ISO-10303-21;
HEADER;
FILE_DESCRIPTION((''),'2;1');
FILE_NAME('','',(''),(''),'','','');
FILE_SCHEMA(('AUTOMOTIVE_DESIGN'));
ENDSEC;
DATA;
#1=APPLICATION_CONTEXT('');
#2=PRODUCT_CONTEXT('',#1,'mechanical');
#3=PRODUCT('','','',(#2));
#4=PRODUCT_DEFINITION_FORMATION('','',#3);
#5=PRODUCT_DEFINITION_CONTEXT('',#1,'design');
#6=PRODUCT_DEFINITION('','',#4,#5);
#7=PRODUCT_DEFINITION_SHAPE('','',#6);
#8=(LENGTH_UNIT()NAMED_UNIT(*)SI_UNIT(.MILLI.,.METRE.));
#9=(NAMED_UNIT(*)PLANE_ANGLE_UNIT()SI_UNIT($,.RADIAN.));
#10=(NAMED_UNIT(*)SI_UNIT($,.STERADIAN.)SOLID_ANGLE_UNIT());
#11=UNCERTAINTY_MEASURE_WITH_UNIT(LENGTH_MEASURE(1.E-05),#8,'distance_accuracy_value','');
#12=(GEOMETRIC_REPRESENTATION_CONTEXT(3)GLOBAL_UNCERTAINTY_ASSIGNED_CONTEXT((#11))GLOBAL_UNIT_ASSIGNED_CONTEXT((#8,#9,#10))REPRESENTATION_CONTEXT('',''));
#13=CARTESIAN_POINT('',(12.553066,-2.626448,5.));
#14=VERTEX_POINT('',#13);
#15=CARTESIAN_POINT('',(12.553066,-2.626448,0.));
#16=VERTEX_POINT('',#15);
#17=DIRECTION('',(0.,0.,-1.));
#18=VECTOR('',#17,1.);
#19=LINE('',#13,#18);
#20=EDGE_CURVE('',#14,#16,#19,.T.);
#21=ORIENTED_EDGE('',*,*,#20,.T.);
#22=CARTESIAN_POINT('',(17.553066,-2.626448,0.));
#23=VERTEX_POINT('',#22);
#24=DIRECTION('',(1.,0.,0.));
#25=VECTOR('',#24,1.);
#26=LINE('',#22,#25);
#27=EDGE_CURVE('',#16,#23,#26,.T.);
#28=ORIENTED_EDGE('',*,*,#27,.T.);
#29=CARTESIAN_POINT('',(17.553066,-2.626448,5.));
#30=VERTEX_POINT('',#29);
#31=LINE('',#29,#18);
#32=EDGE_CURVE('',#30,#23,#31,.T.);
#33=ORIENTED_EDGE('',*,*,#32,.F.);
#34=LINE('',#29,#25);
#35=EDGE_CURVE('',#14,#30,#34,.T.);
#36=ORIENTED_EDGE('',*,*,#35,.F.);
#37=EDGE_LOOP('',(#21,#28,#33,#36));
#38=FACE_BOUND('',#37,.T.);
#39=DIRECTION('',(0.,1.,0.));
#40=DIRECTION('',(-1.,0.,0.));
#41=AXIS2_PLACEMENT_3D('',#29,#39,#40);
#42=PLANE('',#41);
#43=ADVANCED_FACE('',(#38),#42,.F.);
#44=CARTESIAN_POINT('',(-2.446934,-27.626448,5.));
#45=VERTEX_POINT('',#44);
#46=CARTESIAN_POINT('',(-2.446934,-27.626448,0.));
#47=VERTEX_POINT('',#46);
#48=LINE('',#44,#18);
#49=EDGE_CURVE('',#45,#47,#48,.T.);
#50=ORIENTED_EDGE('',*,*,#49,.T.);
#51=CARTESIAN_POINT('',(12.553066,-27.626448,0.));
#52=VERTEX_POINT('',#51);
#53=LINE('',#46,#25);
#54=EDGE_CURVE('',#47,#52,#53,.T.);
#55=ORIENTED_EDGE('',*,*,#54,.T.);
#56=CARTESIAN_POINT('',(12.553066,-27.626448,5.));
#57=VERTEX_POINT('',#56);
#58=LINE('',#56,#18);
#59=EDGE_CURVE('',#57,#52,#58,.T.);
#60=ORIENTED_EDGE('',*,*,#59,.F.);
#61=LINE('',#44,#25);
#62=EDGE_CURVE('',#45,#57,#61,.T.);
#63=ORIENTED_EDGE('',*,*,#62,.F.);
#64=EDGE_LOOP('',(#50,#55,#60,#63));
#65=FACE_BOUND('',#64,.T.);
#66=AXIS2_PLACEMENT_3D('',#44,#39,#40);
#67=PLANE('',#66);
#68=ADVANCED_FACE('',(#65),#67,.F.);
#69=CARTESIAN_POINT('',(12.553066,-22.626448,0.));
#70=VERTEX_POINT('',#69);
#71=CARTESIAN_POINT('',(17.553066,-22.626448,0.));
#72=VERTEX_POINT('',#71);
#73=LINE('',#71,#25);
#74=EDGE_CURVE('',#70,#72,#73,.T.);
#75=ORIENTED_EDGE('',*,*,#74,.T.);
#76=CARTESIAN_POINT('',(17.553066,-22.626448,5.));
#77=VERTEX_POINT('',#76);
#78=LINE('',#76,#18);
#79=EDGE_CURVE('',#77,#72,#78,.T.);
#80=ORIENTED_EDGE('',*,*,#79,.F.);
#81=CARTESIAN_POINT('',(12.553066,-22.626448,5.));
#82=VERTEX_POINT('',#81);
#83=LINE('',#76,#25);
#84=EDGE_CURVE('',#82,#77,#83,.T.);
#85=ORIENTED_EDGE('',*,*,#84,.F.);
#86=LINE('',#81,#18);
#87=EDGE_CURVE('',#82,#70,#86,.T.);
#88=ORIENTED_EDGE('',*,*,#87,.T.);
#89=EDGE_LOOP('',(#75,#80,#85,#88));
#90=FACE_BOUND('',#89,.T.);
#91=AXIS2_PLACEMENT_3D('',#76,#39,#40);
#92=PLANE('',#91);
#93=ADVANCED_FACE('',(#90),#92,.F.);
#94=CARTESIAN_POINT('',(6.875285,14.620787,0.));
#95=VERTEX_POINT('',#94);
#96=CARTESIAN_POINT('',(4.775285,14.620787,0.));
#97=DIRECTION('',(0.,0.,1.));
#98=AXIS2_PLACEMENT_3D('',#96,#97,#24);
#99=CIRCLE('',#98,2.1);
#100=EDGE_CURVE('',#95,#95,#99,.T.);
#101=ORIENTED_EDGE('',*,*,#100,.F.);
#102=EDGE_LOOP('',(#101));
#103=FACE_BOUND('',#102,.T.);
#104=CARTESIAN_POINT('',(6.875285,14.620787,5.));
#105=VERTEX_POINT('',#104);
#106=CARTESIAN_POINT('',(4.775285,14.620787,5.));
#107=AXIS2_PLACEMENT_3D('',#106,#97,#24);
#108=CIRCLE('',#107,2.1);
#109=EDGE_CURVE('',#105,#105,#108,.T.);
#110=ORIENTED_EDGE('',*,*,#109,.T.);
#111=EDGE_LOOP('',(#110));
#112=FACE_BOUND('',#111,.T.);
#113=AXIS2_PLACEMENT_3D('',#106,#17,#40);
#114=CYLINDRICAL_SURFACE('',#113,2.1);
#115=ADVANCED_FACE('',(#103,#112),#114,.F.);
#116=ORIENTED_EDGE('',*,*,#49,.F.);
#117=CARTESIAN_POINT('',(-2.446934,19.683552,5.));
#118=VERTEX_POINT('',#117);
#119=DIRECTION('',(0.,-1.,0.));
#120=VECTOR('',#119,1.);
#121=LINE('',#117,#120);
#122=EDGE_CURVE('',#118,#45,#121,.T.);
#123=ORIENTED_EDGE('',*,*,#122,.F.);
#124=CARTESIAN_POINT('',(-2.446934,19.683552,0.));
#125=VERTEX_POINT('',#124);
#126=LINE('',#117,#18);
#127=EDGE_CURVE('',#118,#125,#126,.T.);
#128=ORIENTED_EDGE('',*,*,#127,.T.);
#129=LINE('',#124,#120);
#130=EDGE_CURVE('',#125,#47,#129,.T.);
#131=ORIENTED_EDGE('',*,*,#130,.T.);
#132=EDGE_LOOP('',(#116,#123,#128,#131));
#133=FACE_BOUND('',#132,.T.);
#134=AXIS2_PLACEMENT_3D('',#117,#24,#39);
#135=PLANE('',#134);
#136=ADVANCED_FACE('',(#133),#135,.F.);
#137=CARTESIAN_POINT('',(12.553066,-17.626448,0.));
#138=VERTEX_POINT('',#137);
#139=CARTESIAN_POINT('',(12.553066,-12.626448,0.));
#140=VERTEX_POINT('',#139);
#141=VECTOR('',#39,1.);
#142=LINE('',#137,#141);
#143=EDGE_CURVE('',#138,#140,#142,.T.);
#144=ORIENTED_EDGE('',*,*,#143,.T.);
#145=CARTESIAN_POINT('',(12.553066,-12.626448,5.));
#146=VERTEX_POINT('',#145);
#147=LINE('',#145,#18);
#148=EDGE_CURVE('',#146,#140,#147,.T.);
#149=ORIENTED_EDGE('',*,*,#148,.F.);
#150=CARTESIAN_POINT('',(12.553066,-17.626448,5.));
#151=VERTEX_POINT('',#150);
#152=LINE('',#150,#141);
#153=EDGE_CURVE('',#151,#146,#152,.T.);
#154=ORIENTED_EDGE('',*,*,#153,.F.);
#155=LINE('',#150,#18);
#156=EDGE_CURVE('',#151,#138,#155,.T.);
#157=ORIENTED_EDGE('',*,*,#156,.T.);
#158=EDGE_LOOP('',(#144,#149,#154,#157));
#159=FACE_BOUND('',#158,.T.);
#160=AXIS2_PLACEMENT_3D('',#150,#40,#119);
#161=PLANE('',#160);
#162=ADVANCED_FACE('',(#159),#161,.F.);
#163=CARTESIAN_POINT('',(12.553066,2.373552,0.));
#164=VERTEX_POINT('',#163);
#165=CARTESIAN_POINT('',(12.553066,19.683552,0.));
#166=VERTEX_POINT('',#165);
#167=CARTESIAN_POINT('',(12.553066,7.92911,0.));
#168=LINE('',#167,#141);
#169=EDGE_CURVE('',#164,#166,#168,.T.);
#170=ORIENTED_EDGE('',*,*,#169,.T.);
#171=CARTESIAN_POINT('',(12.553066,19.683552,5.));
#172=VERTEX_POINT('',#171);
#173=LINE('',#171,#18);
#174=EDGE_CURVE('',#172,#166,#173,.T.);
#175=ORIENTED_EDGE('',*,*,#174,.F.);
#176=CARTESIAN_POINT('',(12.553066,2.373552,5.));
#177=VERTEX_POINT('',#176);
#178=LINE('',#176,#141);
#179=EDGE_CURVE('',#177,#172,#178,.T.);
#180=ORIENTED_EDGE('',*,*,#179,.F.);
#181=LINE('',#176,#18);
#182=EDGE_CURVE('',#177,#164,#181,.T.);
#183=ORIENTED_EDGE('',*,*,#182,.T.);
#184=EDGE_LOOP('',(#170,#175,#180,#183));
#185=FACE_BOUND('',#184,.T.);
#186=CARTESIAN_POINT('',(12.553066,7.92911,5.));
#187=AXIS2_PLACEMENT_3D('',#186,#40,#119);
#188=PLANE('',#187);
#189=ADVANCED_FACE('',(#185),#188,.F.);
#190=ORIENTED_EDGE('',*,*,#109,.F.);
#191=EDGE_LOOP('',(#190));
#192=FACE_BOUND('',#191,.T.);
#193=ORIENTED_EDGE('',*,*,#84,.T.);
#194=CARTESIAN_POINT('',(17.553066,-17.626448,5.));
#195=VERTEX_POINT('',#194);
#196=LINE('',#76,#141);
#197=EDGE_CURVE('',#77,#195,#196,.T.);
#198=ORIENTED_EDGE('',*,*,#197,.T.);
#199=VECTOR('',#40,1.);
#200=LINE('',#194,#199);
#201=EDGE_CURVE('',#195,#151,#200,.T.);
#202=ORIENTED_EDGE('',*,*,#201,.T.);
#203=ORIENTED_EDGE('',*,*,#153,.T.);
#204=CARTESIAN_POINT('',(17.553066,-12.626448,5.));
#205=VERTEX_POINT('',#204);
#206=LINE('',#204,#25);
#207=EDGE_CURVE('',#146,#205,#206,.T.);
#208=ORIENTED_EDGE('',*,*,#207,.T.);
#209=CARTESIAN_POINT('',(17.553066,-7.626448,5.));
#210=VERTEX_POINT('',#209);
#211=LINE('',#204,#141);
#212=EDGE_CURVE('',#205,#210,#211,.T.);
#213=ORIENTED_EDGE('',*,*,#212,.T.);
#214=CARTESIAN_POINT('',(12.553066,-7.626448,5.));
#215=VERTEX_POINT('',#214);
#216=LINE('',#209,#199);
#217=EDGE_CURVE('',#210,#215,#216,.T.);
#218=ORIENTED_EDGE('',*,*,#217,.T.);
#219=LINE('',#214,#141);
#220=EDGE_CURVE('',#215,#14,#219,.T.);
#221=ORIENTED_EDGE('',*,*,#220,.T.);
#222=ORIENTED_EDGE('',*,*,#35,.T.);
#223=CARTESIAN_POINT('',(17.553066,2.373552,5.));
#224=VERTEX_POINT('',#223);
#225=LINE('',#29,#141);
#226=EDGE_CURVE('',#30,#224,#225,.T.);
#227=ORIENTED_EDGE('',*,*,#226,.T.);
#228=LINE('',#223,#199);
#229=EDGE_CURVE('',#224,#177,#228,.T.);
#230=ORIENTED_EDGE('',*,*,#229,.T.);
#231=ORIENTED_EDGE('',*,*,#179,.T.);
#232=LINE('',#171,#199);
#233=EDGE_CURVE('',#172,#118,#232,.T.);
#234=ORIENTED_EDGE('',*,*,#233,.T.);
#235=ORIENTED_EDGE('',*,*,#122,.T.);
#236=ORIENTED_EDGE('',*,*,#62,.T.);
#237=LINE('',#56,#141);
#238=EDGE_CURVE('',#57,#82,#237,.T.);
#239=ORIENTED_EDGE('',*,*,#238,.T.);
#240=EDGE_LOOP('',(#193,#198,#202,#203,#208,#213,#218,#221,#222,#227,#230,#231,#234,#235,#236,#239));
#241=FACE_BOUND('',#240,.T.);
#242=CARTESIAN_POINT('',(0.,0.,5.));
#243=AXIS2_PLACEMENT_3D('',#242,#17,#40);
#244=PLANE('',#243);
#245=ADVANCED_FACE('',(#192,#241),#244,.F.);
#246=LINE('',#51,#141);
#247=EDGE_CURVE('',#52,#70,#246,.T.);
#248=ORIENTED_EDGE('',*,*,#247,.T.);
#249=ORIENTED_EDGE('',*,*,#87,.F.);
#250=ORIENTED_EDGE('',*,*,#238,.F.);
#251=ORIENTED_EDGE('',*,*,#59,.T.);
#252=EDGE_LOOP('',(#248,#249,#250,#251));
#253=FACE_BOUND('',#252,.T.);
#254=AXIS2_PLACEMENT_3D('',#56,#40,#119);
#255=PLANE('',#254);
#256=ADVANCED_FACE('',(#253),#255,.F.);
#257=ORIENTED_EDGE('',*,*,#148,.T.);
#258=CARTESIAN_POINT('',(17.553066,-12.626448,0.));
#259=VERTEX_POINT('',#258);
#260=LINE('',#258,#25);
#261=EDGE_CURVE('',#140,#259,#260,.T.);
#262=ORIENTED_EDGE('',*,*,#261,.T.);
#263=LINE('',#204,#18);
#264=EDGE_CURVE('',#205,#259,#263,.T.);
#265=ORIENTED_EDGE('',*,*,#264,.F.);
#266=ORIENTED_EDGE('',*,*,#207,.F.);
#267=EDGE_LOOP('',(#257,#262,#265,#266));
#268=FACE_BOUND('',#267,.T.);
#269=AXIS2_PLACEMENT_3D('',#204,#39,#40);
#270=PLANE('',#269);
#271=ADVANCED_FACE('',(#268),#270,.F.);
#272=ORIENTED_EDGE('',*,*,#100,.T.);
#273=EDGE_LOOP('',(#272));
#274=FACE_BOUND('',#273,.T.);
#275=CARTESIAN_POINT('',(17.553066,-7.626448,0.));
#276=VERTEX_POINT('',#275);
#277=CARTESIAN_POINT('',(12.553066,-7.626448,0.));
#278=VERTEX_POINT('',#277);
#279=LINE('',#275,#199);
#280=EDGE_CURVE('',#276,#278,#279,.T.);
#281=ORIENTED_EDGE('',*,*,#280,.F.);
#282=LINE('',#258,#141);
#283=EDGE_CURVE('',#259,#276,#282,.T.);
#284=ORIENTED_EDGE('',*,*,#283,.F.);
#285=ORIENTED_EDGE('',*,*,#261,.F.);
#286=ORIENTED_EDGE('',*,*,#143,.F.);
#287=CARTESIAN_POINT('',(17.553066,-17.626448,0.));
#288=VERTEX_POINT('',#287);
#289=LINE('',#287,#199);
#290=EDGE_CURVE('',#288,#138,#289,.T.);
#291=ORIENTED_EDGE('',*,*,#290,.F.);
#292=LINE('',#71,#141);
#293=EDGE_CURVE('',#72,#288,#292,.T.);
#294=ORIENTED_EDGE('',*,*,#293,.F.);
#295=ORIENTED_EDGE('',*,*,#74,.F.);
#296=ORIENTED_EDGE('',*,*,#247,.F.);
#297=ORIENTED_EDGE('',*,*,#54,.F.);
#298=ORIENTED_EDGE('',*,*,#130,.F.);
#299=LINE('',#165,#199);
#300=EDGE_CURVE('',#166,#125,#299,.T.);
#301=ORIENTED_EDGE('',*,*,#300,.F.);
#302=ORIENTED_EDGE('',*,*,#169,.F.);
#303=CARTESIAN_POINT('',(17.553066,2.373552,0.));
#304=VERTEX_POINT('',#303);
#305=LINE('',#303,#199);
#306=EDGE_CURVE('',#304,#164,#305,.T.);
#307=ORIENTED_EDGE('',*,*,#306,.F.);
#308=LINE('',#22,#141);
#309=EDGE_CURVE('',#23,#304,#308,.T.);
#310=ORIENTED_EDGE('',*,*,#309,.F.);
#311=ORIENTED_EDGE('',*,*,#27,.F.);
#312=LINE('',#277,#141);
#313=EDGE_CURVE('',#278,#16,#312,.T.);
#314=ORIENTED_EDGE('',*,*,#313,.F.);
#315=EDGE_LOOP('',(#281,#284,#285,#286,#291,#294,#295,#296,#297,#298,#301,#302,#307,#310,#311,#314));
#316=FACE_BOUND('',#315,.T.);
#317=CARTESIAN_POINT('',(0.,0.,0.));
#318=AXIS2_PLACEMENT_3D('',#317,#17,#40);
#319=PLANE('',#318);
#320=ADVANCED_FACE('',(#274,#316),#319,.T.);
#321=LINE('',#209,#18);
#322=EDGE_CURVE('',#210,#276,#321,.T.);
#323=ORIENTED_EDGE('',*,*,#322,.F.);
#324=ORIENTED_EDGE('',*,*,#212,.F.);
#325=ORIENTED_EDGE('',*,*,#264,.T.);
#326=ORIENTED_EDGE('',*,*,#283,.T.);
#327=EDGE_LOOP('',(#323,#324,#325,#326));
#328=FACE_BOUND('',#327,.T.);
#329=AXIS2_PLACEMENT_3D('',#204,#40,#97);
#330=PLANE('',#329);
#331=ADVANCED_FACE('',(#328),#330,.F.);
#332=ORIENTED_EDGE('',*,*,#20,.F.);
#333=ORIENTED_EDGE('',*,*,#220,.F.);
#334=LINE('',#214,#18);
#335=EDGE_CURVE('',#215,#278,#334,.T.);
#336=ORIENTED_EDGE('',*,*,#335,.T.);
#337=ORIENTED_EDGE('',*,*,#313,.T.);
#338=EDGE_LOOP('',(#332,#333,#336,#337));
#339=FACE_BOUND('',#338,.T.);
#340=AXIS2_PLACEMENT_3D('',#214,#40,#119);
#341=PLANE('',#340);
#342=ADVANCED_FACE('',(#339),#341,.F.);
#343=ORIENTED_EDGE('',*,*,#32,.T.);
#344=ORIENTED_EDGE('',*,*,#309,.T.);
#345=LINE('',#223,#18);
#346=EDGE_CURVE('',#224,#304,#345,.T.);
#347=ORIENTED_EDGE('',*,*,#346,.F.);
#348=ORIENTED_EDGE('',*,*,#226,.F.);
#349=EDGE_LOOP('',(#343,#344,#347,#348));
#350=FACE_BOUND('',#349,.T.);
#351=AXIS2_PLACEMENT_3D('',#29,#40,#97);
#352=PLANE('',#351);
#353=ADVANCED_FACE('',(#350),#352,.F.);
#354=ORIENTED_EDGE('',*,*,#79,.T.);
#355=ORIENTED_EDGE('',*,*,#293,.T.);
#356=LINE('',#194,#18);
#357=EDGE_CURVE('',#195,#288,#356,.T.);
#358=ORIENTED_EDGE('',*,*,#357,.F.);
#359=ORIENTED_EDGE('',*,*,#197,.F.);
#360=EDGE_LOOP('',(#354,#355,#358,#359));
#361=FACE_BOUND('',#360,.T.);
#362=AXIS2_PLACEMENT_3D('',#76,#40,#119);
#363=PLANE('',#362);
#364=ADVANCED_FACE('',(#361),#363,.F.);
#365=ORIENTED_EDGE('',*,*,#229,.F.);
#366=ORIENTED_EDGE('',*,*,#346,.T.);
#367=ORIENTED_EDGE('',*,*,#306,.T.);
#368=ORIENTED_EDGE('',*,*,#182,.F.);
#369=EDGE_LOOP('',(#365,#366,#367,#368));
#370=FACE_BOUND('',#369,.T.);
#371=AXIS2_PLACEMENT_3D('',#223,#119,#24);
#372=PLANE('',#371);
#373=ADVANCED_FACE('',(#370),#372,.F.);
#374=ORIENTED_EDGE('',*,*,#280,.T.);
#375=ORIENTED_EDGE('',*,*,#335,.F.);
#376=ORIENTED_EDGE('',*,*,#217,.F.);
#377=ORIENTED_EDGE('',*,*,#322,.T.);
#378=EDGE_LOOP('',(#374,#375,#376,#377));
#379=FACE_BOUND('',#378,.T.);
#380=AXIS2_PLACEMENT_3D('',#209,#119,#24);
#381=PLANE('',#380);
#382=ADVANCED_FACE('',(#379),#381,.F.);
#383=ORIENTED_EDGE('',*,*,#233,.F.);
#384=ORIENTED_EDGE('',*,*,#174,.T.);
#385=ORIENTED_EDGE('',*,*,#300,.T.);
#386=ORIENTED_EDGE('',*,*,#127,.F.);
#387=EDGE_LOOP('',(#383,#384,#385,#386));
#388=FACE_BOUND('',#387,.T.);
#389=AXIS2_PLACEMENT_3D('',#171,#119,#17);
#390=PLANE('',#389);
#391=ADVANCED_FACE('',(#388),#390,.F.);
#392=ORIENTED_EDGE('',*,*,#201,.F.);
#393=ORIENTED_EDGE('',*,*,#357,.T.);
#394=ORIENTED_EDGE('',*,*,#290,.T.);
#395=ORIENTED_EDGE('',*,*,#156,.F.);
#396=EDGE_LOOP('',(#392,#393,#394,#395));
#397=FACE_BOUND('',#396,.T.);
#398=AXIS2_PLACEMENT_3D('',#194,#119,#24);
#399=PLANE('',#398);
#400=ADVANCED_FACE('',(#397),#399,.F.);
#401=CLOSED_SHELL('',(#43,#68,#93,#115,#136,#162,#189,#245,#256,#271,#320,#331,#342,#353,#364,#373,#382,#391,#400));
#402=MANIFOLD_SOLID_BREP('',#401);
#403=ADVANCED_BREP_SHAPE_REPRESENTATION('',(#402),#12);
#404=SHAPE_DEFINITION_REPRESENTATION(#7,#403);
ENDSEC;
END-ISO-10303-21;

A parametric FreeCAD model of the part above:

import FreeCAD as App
import Part
import Sketcher
from FreeCAD import Vector
Q = App.Units.Quantity


def add_polygon(sketch, points):
    """Adds a closed chain of lines whose ends are joined by coincident constraints."""
    first, n = sketch.GeometryCount, len(points)
    for a, b in zip(points, points[1:] + points[:1]):
        sketch.addGeometry(Part.LineSegment(App.Vector(*a, 0), App.Vector(*b, 0)), False)
    for i in range(n):
        sketch.addConstraint(Sketcher.Constraint("Coincident", first + i, 2, first + (i + 1) % n, 1))

doc = App.newDocument("Part")
body = doc.addObject("PartDesign::Body", "Body")

# Sketch on XY plane
sketch1 = doc.addObject("Sketcher::SketchObject", "Sketch")
body.addObject(sketch1)
sketch1.AttachmentSupport = (doc.XY_Plane, [""])
sketch1.MapMode = "FlatFace"
add_polygon(sketch1, [(12.6, 2.4), (12.6, 19.7), (-2.4, 19.7), (-2.4, -27.6), (12.6, -27.6), (12.6, -22.6), (17.6, -22.6), (17.6, -17.6), (12.6, -17.6), (12.6, -12.6), (17.6, -12.6), (17.6, -7.6), (12.6, -7.6), (12.6, -2.6), (17.6, -2.6), (17.6, 2.4)])  # lines 0-15
sketch1.addGeometry(Part.Circle(Vector(4.8, 14.6, 0), Vector(0, 0, 1), 2.1), False)  # 16
sketch1.addConstraint([
    Sketcher.Constraint("Vertical", 0),
    Sketcher.Constraint("Horizontal", 1),
    Sketcher.Constraint("Vertical", 2),
    Sketcher.Constraint("Horizontal", 3),
    Sketcher.Constraint("Vertical", 4),
    Sketcher.Constraint("Horizontal", 5),
    Sketcher.Constraint("Vertical", 6),
    Sketcher.Constraint("Horizontal", 7),
    Sketcher.Constraint("Vertical", 8),
    Sketcher.Constraint("Horizontal", 9),
    Sketcher.Constraint("Vertical", 10),
    Sketcher.Constraint("Horizontal", 11),
    Sketcher.Constraint("Vertical", 12),
    Sketcher.Constraint("Horizontal", 13),
    Sketcher.Constraint("Vertical", 14),
    Sketcher.Constraint("Horizontal", 15),
    Sketcher.Constraint("Vertical", 0, 2, 3, 2),
    Sketcher.Constraint("Vertical", 4, 2, 7, 2),
    Sketcher.Constraint("Vertical", 6, 2, 9, 2),
    Sketcher.Constraint("Vertical", 8, 2, 11, 2),
    Sketcher.Constraint("Vertical", 10, 2, 13, 2),
    Sketcher.Constraint("Equal", 15, 4),
    Sketcher.Constraint("Equal", 4, 6),
    Sketcher.Constraint("Equal", 6, 8),
    Sketcher.Constraint("Equal", 8, 10),
    Sketcher.Constraint("Equal", 10, 12),
    Sketcher.Constraint("Equal", 12, 14),
    Sketcher.Constraint("Diameter", 16, Q("4.2 mm")),
    Sketcher.Constraint("DistanceX", 1, 2, 1, 1, Q("15 mm")),
    Sketcher.Constraint("DistanceX", 5, 1, 5, 2, Q("5 mm")),
    Sketcher.Constraint("DistanceY", 0, 1, 0, 2, Q("17.31 mm")),
    Sketcher.Constraint("DistanceX", 16, 3, 0, 2, Q("7.777781 mm")),
    Sketcher.Constraint("DistanceX", -1, 1, 16, 3, Q("4.775285 mm")),
    Sketcher.Constraint("DistanceY", -1, 1, 16, 3, Q("14.620787 mm")),
    Sketcher.Constraint("DistanceY", -1, 1, 0, 2, Q("19.683552 mm")),
])
pad1 = doc.addObject("PartDesign::Pad", "Pad")
body.addObject(pad1)
pad1.Profile = sketch1
pad1.Length = 5

doc.recompute()
